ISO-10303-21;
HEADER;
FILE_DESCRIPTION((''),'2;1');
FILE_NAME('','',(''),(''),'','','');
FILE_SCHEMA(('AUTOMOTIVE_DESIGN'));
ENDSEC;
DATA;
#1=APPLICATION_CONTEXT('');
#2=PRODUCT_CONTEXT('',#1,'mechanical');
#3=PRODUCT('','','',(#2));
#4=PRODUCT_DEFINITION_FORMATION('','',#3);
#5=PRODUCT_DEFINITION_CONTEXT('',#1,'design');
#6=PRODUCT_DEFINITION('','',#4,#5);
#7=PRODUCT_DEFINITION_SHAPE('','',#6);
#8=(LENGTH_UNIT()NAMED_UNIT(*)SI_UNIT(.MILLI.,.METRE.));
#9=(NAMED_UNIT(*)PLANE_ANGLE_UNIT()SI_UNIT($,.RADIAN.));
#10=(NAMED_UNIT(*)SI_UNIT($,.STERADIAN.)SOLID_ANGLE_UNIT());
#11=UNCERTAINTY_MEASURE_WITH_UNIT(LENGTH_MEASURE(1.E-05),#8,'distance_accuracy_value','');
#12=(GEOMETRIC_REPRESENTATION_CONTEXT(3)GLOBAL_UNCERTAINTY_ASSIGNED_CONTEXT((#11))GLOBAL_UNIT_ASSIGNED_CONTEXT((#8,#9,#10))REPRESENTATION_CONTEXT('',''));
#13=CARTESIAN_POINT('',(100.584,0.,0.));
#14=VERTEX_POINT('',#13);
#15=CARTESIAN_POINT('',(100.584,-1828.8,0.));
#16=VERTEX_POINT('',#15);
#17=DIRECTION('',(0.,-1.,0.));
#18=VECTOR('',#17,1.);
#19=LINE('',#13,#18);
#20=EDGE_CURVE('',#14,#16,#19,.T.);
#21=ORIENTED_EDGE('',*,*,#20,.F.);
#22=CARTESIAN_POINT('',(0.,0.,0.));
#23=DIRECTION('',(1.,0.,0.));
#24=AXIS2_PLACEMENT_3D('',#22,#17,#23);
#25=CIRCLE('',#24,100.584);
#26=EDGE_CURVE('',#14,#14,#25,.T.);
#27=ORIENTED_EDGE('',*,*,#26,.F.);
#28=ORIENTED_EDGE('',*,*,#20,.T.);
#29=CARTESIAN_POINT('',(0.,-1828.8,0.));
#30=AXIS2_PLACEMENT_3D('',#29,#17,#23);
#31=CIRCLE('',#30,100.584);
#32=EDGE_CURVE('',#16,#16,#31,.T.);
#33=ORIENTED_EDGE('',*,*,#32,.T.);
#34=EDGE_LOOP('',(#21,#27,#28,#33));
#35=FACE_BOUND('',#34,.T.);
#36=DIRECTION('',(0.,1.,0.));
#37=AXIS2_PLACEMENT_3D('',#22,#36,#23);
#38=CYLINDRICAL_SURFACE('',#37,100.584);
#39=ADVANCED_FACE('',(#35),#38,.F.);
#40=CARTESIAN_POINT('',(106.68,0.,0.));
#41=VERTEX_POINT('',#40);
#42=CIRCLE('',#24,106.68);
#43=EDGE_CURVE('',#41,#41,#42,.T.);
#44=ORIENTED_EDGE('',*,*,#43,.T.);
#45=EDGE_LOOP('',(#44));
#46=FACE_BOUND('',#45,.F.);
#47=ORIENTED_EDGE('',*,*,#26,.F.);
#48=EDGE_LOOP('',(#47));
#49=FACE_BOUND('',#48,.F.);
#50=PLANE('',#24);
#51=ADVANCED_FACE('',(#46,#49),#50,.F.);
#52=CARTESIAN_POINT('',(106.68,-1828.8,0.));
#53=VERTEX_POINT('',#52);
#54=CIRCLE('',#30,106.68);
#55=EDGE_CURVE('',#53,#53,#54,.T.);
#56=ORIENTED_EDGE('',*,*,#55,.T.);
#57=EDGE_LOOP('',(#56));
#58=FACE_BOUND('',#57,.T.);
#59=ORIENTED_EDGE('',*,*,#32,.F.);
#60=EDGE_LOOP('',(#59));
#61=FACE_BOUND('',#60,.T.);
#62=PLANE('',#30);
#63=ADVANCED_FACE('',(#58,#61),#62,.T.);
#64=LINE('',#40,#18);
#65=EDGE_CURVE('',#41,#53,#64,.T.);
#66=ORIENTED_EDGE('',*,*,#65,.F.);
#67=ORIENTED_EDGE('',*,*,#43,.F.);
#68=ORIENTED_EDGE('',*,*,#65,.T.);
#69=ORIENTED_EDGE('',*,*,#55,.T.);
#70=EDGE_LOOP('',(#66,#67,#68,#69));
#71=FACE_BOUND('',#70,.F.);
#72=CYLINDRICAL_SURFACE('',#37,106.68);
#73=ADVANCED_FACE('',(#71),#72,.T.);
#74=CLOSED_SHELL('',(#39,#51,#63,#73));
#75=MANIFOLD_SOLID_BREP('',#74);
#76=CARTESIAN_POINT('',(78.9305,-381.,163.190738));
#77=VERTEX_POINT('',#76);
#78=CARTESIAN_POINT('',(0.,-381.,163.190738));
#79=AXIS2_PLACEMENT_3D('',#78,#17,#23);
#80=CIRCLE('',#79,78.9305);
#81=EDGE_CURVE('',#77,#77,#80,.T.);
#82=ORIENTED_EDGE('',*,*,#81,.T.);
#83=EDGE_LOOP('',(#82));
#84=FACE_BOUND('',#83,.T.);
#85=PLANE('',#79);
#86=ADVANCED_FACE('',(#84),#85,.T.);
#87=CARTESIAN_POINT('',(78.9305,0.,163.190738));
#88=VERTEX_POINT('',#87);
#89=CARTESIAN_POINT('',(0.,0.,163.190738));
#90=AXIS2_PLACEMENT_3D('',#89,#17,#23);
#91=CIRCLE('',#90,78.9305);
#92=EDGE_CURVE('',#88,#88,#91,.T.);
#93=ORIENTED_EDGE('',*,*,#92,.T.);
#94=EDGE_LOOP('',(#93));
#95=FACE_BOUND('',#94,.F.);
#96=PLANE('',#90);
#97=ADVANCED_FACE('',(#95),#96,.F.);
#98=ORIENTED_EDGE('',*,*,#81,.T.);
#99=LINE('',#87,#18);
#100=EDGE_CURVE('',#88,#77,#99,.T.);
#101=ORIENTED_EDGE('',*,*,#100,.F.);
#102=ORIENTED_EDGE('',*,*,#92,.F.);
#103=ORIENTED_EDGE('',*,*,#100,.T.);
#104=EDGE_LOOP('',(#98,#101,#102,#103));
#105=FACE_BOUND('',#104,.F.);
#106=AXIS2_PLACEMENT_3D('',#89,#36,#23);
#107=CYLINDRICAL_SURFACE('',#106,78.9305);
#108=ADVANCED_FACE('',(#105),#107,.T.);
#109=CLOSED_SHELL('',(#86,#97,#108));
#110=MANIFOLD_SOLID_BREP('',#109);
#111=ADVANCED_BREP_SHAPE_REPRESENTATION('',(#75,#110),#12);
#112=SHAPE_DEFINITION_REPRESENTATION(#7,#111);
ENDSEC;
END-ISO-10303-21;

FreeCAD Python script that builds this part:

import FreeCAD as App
import Part
import Sketcher

V = App.Vector
Q = App.Units.Quantity

doc = App.newDocument("Part")
body = doc.addObject("PartDesign::Body", "Body")

sketch1 = body.newObject("Sketcher::SketchObject", "Sketch")
sketch1.AttachmentSupport = (doc.getObject("XZ_Plane"), [""])
sketch1.MapMode = "FlatFace"
sketch1.addGeometry([
    Part.Circle(V(0, 0, 0), V(0, 0, 1), 107),
    Part.Circle(V(0, 0, 0), V(0, 0, 1), 101),
], False)
sketch1.addConstraint([
    Sketcher.Constraint("Coincident", 0, 3, -1, 1),
    Sketcher.Constraint("Coincident", 1, 3, -1, 1),
    Sketcher.Constraint("Diameter", 0, Q("8.4 in")),
    Sketcher.Constraint("Diameter", 1, Q("7.92 in")),
])
pad1 = body.newObject("PartDesign::Pad", "Pad")
pad1.Profile = sketch1
pad1.Length = Q("72 in")
body2 = doc.addObject("PartDesign::Body", "Body001")

sketch2 = body2.newObject("Sketcher::SketchObject", "Sketch001")
sketch2.AttachmentSupport = (doc.getObject("XZ_Plane001"), [""])
sketch2.MapMode = "FlatFace"
sketch2.addGeometry(Part.Circle(V(0, 163, 0), V(0, 0, 1), 79), False)
sketch2.addConstraint([
    Sketcher.Constraint("PointOnObject", 0, 3, -2),
    Sketcher.Constraint("Diameter", 0, Q("6.215 in")),
    Sketcher.Constraint("DistanceY", -1, 1, 0, 3, Q("163.190738 mm")),
])
pad2 = body2.newObject("PartDesign::Pad", "Pad001")
pad2.Profile = sketch2
pad2.Length = Q("15 in")

doc.recompute()
